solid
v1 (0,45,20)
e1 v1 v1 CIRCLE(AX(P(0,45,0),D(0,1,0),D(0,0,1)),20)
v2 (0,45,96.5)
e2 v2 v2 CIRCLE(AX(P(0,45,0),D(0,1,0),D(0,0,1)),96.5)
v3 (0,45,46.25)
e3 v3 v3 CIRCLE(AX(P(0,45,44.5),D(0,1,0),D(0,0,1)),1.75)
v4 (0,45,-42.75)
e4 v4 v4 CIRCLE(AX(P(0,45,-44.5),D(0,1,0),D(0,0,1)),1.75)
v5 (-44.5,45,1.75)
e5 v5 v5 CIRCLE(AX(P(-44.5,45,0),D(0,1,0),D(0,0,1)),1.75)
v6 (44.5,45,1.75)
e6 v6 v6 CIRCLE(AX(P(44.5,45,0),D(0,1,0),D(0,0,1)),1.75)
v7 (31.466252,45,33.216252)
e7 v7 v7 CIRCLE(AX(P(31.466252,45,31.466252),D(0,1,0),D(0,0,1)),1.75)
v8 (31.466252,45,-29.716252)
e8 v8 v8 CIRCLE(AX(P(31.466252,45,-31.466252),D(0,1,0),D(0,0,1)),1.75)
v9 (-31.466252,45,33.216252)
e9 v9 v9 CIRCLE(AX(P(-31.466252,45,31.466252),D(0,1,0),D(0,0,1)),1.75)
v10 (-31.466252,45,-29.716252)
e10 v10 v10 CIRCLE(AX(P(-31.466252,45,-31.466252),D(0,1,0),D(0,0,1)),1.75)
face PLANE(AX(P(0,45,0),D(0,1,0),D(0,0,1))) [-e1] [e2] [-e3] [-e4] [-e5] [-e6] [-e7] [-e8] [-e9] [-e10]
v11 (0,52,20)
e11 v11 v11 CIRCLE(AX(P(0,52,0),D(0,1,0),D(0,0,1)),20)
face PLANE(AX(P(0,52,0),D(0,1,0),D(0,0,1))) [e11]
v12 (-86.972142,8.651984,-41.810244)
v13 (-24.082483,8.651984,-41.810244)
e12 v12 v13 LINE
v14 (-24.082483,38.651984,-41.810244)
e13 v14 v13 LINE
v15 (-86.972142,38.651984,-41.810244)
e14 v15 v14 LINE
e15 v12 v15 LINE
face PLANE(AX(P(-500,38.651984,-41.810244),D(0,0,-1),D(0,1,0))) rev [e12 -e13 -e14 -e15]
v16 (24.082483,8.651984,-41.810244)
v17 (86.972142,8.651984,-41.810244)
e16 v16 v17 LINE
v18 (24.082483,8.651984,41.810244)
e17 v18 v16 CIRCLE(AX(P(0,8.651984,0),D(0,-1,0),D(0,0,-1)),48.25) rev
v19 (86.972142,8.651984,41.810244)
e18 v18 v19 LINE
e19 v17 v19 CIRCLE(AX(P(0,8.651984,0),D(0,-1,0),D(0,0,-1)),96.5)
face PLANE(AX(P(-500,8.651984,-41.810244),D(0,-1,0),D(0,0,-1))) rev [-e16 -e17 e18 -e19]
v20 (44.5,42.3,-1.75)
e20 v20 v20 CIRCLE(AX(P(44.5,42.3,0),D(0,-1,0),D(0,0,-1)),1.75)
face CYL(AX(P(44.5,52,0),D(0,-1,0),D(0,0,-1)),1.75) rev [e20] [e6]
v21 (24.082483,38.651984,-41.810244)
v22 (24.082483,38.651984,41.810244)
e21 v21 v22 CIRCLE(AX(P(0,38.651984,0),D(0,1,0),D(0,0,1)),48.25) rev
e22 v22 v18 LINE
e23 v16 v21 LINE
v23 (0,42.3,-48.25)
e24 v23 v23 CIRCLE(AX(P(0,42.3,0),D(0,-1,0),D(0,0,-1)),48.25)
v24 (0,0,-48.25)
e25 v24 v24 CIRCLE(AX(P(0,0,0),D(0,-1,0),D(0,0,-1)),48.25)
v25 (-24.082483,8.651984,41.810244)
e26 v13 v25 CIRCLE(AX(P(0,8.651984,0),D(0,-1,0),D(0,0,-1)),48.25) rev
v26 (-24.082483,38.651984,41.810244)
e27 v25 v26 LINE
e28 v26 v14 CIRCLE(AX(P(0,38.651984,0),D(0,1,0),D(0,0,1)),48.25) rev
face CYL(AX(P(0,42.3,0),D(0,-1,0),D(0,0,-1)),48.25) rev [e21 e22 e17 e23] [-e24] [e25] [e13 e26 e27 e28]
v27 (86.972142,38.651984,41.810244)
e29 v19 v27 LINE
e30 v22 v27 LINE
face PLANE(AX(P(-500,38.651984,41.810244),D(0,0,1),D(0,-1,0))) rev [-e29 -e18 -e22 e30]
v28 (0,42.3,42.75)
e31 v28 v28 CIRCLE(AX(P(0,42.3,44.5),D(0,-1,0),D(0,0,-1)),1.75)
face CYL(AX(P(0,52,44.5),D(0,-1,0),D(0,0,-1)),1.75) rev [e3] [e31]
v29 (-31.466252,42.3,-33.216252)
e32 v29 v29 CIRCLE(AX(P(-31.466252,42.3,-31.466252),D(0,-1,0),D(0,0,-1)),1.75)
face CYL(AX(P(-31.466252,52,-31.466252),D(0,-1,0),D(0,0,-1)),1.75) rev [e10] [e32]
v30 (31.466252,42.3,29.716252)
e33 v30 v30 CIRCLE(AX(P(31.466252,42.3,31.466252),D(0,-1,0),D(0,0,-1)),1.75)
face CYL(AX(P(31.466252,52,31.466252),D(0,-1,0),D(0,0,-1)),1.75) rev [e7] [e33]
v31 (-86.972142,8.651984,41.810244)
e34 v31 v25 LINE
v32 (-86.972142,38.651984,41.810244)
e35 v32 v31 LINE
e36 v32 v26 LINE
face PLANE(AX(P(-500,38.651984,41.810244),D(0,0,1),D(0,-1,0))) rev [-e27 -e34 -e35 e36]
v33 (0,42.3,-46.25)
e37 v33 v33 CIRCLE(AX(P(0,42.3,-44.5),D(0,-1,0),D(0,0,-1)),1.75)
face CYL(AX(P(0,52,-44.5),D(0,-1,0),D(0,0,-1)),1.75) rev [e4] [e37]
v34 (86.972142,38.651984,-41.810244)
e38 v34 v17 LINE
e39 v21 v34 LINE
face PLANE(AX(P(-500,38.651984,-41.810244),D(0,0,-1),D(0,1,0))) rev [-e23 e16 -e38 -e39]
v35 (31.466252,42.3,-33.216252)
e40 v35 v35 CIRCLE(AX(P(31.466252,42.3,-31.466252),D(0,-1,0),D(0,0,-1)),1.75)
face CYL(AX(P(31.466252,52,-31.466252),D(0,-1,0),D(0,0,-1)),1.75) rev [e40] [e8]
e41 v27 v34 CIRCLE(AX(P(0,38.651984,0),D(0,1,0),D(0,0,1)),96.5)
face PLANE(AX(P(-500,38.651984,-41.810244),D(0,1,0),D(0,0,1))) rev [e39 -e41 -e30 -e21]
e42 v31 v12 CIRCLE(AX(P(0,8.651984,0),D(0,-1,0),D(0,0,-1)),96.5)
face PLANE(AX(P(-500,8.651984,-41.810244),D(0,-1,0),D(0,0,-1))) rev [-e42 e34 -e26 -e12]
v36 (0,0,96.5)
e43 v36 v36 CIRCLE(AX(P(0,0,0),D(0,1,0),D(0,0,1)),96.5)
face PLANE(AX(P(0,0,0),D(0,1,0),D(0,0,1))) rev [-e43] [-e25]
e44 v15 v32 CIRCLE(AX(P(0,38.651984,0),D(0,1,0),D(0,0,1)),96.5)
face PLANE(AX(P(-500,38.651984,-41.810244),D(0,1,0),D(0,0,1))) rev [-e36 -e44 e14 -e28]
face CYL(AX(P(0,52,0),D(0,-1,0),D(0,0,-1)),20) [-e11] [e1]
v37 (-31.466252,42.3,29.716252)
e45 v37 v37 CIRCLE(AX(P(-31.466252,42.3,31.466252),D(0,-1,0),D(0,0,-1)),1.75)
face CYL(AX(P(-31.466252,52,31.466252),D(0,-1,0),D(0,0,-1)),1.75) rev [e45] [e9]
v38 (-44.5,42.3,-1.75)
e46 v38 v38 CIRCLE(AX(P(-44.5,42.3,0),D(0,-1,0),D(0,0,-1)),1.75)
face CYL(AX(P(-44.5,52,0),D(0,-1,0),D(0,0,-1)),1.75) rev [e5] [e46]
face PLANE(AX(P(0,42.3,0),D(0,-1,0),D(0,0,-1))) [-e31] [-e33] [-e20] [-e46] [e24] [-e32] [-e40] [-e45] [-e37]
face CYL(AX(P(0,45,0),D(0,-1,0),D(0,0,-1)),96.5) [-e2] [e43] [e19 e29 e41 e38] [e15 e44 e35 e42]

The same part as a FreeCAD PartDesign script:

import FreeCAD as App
import Part
import Sketcher

V = App.Vector


def add_polygon(sketch, points):
    """Adds a closed chain of lines whose ends are joined by coincident constraints."""
    first, n = sketch.GeometryCount, len(points)
    for a, b in zip(points, points[1:] + points[:1]):
        sketch.addGeometry(Part.LineSegment(App.Vector(*a, 0), App.Vector(*b, 0)), False)
    for i in range(n):
        sketch.addConstraint(Sketcher.Constraint("Coincident", first + i, 2, first + (i + 1) % n, 1))

doc = App.newDocument("Part")
body = doc.addObject("PartDesign::Body", "Body")

# Sketch on XZ plane
sketch1 = body.newObject("Sketcher::SketchObject", "Sketch")
sketch1.AttachmentSupport = (doc.getObject("XZ_Plane"), [""])
sketch1.MapMode = "FlatFace"
sketch1.addGeometry(Part.Circle(V(0, 0, 0), V(0, 0, 1), 96.5), False)
sketch1.addConstraint([
    Sketcher.Constraint("Coincident", 0, 3, -1, 1),
    Sketcher.Constraint("Diameter", 0, 193.0),
])
pad1 = body.newObject("PartDesign::Pad", "Pad")
pad1.Profile = sketch1
pad1.Length = 45
pad1.Reversed = True

# Sketch on XZ plane
sketch2 = body.newObject("Sketcher::SketchObject", "Sketch001")
sketch2.AttachmentSupport = (doc.getObject("XZ_Plane"), [""])
sketch2.MapMode = "FlatFace"
sketch2.addGeometry(Part.Circle(V(0, 0, 0), V(0, 0, 1), 48.25), False)
sketch2.addConstraint([
    Sketcher.Constraint("Coincident", 0, 3, -1, 1),
    Sketcher.Constraint("Diameter", 0, 96.5),
])
pocket1 = body.newObject("PartDesign::Pocket", "Pocket")
pocket1.Profile = sketch2
pocket1.Length = 42.3

# Sketch on YZ plane
sketch3 = body.newObject("Sketcher::SketchObject", "Sketch002")
sketch3.AttachmentSupport = (doc.getObject("YZ_Plane"), [""])
sketch3.MapMode = "FlatFace"
add_polygon(sketch3, [(38.651984, 41.810244), (8.651984, 41.810244), (8.651984, -41.810244), (38.651984, -41.810244)])  # lines 0-3
sketch3.addConstraint([
    Sketcher.Constraint("Horizontal", 0),
    Sketcher.Constraint("Vertical", 1),
    Sketcher.Constraint("Horizontal", 2),
    Sketcher.Constraint("Vertical", 3),
    Sketcher.Constraint("DistanceX", 0, 2, 0, 1, 30.0),
    Sketcher.Constraint("DistanceY", 1, 2, 1, 1, 83.620488),
    Sketcher.Constraint("DistanceX", -1, 1, 0, 2, 8.651984),
    Sketcher.Constraint("DistanceY", -1, 1, 0, 2, 41.810244),
])
pocket2 = body.newObject("PartDesign::Pocket", "Pocket001")
pocket2.Profile = sketch3
pocket2.Length = 1000
pocket2.Midplane = True

# Sketch on XZ plane
sketch4 = body.newObject("Sketcher::SketchObject", "Sketch003")
sketch4.AttachmentSupport = (doc.getObject("XZ_Plane"), [""])
sketch4.MapMode = "FlatFace"
sketch4.AttachmentOffset = App.Placement(V(0, 0, -45), App.Rotation())
sketch4.addGeometry(Part.Circle(V(0, 0, 0), V(0, 0, 1), 20), False)
sketch4.addConstraint([
    Sketcher.Constraint("Coincident", 0, 3, -1, 1),
    Sketcher.Constraint("Diameter", 0, 40.0),
])
pad2 = body.newObject("PartDesign::Pad", "Pad001")
pad2.Profile = sketch4
pad2.Length = 7
pad2.Reversed = True

# Sketch on XZ plane
sketch5 = body.newObject("Sketcher::SketchObject", "Sketch004")
sketch5.AttachmentSupport = (doc.getObject("XZ_Plane"), [""])
sketch5.MapMode = "FlatFace"
sketch5.AttachmentOffset = App.Placement(V(0, 0, -42.3), App.Rotation())
sketch5.addGeometry([
    Part.Circle(V(0, 44.5, 0), V(0, 0, 1), 1.75),  # 0
    Part.Circle(V(31.466252, 31.466252, 0), V(0, 0, 1), 1.75),  # 1
    Part.Circle(V(44.5, 0, 0), V(0, 0, 1), 1.75),  # 2
    Part.Circle(V(31.466252, -31.466252, 0), V(0, 0, 1), 1.75),  # 3
    Part.Circle(V(0, -44.5, 0), V(0, 0, 1), 1.75),  # 4
    Part.Circle(V(-31.466252, -31.466252, 0), V(0, 0, 1), 1.75),  # 5
    Part.Circle(V(-44.5, 0, 0), V(0, 0, 1), 1.75),  # 6
    Part.Circle(V(-31.466252, 31.466252, 0), V(0, 0, 1), 1.75),  # 7
], False)
sketch5.addConstraint([
    Sketcher.Constraint("Equal", 0, 1),
    Sketcher.Constraint("Equal", 1, 2),
    Sketcher.Constraint("Equal", 2, 3),
    Sketcher.Constraint("Equal", 3, 4),
    Sketcher.Constraint("Equal", 4, 5),
    Sketcher.Constraint("Equal", 5, 6),
    Sketcher.Constraint("Equal", 6, 7),
    Sketcher.Constraint("Symmetric", 0, 3, 4, 3, -1, 1),
    Sketcher.Constraint("Symmetric", 1, 3, 5, 3, -1, 1),
    Sketcher.Constraint("Symmetric", 2, 3, 6, 3, -1, 1),
    Sketcher.Constraint("Symmetric", 3, 3, 7, 3, -1, 1),
    Sketcher.Constraint("Symmetric", 3, 3, 5, 3, -2),
    Sketcher.Constraint("PointOnObject", 0, 3, -2),
    Sketcher.Constraint("PointOnObject", 2, 3, -1),
    Sketcher.Constraint("Diameter", 0, 3.5),
    Sketcher.Constraint("DistanceY", 4, 3, 0, 3, 89.0),
    Sketcher.Constraint("DistanceX", -1, 1, 2, 3, 44.5),
    Sketcher.Constraint("DistanceX", -1, 1, 1, 3, 31.466252),
    Sketcher.Constraint("DistanceY", -1, 1, 1, 3, 31.466252),
])
pocket3 = body.newObject("PartDesign::Pocket", "Pocket002")
pocket3.Profile = sketch5
pocket3.Type = "ThroughAll"

doc.recompute()
